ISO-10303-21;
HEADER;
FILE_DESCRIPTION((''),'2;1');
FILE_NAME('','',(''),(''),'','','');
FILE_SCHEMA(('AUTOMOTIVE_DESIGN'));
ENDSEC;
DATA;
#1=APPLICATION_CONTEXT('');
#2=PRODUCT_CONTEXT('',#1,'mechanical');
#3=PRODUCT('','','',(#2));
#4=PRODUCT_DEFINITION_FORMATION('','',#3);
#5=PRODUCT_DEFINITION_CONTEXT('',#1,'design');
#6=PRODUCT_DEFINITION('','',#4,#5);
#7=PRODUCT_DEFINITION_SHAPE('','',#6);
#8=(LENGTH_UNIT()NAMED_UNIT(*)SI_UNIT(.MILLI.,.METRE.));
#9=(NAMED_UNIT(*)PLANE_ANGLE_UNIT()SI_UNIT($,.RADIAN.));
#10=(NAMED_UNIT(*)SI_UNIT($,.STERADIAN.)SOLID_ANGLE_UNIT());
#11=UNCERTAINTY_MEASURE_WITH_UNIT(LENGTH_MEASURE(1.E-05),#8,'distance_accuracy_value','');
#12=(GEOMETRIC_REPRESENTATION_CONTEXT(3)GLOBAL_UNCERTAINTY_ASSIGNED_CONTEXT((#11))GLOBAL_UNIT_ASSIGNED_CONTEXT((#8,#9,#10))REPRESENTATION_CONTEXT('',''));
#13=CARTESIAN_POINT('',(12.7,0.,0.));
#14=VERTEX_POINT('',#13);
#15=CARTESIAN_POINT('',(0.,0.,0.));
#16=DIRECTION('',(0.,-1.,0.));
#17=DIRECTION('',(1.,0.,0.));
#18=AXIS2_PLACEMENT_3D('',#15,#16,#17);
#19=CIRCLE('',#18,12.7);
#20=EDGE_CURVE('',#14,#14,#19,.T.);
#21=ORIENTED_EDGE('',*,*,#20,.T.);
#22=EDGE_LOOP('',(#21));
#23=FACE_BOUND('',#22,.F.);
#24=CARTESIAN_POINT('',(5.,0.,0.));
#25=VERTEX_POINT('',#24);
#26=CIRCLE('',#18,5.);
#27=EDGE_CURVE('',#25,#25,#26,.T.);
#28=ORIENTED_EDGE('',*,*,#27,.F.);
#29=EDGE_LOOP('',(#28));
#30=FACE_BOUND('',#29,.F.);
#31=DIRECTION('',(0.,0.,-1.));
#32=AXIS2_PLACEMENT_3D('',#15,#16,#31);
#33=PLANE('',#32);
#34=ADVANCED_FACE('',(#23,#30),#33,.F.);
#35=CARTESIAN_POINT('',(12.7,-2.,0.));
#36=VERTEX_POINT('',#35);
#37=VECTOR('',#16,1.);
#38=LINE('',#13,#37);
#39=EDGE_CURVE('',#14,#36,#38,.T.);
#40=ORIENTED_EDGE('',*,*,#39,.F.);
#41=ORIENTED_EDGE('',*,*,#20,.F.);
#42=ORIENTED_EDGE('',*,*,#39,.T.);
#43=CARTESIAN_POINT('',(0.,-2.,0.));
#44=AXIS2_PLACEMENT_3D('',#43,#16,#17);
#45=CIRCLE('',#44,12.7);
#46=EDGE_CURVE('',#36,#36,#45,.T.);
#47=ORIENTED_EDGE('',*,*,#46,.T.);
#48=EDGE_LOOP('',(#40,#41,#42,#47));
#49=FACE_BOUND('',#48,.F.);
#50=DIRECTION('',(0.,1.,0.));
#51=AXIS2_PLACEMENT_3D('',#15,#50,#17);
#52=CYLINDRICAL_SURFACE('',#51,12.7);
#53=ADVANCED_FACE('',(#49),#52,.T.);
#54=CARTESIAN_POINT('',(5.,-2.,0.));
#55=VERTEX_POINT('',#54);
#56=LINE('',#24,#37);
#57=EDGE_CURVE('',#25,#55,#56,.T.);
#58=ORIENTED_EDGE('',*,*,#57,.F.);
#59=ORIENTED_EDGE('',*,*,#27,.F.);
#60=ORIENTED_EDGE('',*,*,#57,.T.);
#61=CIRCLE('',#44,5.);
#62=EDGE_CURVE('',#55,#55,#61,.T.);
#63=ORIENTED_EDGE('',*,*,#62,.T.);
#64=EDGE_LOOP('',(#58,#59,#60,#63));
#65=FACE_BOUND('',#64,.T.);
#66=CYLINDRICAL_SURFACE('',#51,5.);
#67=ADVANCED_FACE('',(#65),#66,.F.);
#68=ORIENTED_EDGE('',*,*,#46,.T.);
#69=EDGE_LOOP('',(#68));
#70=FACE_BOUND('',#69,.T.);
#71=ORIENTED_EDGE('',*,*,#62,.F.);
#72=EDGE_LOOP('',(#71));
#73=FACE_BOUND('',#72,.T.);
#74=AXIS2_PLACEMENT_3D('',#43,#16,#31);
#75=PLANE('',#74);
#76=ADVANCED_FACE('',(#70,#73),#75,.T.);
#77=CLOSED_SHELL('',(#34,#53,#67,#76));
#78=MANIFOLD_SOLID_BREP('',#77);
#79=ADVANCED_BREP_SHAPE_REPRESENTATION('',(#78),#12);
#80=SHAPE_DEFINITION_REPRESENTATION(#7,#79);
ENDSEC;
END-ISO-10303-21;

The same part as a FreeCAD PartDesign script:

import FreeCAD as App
import Part
import Sketcher

V = App.Vector
Q = App.Units.Quantity

doc = App.newDocument("Part")
body = doc.addObject("PartDesign::Body", "Body")

# Sketch on XZ plane
sketch1 = doc.addObject("Sketcher::SketchObject", "Sketch")
body.addObject(sketch1)
sketch1.AttachmentSupport = (doc.XZ_Plane, [""])
sketch1.MapMode = "FlatFace"
sketch1.addGeometry([
    Part.Circle(V(0, 0, 0), V(0, 0, 1), 13),
    Part.Circle(V(0, 0, 0), V(0, 0, 1), 5),
], False)
sketch1.addConstraint([
    Sketcher.Constraint("Coincident", 0, 3, -1, 1),
    Sketcher.Constraint("Coincident", 1, 3, -1, 1),
    Sketcher.Constraint("Diameter", 1, Q("10 mm")),
    Sketcher.Constraint("Diameter", 0, Q("25.4 mm")),
])
pad1 = doc.addObject("PartDesign::Pad", "Pad")
body.addObject(pad1)
pad1.Profile = sketch1
pad1.Length = 2

doc.recompute()
